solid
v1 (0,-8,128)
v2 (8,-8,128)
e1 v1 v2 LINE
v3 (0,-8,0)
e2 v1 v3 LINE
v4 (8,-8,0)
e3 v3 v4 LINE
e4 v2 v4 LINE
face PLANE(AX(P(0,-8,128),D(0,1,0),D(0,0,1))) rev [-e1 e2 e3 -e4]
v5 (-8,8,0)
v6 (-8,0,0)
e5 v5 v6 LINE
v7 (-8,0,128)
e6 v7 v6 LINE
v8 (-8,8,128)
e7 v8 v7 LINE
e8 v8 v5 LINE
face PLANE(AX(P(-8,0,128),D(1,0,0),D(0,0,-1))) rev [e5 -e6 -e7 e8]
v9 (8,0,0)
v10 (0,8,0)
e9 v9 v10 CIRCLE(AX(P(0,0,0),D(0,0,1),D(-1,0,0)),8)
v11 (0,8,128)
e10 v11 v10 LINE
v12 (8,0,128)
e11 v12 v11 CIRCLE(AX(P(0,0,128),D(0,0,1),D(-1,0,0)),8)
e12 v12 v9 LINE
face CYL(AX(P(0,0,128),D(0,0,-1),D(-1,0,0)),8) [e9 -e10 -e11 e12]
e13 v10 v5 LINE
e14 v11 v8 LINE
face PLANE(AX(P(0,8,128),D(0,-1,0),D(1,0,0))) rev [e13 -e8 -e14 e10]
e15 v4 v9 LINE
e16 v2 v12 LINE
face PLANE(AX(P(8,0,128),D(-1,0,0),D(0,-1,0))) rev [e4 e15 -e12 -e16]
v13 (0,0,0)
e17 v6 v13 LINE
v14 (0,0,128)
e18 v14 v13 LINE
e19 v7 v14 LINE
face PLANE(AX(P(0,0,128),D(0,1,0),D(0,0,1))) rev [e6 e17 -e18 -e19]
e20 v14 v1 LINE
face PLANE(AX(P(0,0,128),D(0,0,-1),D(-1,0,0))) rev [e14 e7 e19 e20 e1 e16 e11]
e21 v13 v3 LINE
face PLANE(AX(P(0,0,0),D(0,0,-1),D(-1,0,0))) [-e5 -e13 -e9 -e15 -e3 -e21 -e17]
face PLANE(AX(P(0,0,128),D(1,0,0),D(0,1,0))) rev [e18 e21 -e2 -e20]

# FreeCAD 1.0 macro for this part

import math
import FreeCAD as App
import Part
import Sketcher

V = App.Vector

doc = App.newDocument("Part")
body = doc.addObject("PartDesign::Body", "Body")

# Sketch on XY plane
sketch1 = doc.addObject("Sketcher::SketchObject", "Sketch")
body.addObject(sketch1)
sketch1.AttachmentSupport = (doc.XY_Plane, [""])
sketch1.MapMode = "FlatFace"
sketch1.addGeometry([
    Part.LineSegment(V(-8, 0, 0), V(0, 0, 0)),  # 0
    Part.LineSegment(V(0, 0, 0), V(0, -8, 0)),  # 1
    Part.LineSegment(V(0, -8, 0), V(8, -8, 0)),  # 2
    Part.LineSegment(V(8, -8, 0), V(8, 0, 0)),  # 3
    Part.ArcOfCircle(Part.Circle(V(0, 0, 0), V(0, 0, 1), 8), math.radians(0), math.radians(90)),  # 4
    Part.LineSegment(V(0, 8, 0), V(-8, 8, 0)),  # 5
    Part.LineSegment(V(-8, 8, 0), V(-8, 0, 0)),  # 6
], False)
sketch1.addConstraint([
    Sketcher.Constraint("Coincident", 0, 2, 1, 1),
    Sketcher.Constraint("Coincident", 1, 2, 2, 1),
    Sketcher.Constraint("Coincident", 2, 2, 3, 1),
    Sketcher.Constraint("Tangent", 3, 2, 4, 1),
    Sketcher.Constraint("Tangent", 4, 2, 5, 1),
    Sketcher.Constraint("Coincident", 5, 2, 6, 1),
    Sketcher.Constraint("Coincident", 6, 2, 0, 1),
    Sketcher.Constraint("Horizontal", 0),
    Sketcher.Constraint("Vertical", 1),
    Sketcher.Constraint("Horizontal", 2),
    Sketcher.Constraint("Vertical", 3),
    Sketcher.Constraint("Horizontal", 5),
    Sketcher.Constraint("Vertical", 6),
    Sketcher.Constraint("Coincident", 4, 3, -1, 1),
    Sketcher.Constraint("Coincident", 0, 2, -1, 1),
    Sketcher.Constraint("Symmetric", 2, 2, 5, 2, -1, 1),
    Sketcher.Constraint("Radius", 4, 8.0),
])
pad1 = doc.addObject("PartDesign::Pad", "Pad")
body.addObject(pad1)
pad1.Profile = sketch1
pad1.Length = 128

doc.recompute()
